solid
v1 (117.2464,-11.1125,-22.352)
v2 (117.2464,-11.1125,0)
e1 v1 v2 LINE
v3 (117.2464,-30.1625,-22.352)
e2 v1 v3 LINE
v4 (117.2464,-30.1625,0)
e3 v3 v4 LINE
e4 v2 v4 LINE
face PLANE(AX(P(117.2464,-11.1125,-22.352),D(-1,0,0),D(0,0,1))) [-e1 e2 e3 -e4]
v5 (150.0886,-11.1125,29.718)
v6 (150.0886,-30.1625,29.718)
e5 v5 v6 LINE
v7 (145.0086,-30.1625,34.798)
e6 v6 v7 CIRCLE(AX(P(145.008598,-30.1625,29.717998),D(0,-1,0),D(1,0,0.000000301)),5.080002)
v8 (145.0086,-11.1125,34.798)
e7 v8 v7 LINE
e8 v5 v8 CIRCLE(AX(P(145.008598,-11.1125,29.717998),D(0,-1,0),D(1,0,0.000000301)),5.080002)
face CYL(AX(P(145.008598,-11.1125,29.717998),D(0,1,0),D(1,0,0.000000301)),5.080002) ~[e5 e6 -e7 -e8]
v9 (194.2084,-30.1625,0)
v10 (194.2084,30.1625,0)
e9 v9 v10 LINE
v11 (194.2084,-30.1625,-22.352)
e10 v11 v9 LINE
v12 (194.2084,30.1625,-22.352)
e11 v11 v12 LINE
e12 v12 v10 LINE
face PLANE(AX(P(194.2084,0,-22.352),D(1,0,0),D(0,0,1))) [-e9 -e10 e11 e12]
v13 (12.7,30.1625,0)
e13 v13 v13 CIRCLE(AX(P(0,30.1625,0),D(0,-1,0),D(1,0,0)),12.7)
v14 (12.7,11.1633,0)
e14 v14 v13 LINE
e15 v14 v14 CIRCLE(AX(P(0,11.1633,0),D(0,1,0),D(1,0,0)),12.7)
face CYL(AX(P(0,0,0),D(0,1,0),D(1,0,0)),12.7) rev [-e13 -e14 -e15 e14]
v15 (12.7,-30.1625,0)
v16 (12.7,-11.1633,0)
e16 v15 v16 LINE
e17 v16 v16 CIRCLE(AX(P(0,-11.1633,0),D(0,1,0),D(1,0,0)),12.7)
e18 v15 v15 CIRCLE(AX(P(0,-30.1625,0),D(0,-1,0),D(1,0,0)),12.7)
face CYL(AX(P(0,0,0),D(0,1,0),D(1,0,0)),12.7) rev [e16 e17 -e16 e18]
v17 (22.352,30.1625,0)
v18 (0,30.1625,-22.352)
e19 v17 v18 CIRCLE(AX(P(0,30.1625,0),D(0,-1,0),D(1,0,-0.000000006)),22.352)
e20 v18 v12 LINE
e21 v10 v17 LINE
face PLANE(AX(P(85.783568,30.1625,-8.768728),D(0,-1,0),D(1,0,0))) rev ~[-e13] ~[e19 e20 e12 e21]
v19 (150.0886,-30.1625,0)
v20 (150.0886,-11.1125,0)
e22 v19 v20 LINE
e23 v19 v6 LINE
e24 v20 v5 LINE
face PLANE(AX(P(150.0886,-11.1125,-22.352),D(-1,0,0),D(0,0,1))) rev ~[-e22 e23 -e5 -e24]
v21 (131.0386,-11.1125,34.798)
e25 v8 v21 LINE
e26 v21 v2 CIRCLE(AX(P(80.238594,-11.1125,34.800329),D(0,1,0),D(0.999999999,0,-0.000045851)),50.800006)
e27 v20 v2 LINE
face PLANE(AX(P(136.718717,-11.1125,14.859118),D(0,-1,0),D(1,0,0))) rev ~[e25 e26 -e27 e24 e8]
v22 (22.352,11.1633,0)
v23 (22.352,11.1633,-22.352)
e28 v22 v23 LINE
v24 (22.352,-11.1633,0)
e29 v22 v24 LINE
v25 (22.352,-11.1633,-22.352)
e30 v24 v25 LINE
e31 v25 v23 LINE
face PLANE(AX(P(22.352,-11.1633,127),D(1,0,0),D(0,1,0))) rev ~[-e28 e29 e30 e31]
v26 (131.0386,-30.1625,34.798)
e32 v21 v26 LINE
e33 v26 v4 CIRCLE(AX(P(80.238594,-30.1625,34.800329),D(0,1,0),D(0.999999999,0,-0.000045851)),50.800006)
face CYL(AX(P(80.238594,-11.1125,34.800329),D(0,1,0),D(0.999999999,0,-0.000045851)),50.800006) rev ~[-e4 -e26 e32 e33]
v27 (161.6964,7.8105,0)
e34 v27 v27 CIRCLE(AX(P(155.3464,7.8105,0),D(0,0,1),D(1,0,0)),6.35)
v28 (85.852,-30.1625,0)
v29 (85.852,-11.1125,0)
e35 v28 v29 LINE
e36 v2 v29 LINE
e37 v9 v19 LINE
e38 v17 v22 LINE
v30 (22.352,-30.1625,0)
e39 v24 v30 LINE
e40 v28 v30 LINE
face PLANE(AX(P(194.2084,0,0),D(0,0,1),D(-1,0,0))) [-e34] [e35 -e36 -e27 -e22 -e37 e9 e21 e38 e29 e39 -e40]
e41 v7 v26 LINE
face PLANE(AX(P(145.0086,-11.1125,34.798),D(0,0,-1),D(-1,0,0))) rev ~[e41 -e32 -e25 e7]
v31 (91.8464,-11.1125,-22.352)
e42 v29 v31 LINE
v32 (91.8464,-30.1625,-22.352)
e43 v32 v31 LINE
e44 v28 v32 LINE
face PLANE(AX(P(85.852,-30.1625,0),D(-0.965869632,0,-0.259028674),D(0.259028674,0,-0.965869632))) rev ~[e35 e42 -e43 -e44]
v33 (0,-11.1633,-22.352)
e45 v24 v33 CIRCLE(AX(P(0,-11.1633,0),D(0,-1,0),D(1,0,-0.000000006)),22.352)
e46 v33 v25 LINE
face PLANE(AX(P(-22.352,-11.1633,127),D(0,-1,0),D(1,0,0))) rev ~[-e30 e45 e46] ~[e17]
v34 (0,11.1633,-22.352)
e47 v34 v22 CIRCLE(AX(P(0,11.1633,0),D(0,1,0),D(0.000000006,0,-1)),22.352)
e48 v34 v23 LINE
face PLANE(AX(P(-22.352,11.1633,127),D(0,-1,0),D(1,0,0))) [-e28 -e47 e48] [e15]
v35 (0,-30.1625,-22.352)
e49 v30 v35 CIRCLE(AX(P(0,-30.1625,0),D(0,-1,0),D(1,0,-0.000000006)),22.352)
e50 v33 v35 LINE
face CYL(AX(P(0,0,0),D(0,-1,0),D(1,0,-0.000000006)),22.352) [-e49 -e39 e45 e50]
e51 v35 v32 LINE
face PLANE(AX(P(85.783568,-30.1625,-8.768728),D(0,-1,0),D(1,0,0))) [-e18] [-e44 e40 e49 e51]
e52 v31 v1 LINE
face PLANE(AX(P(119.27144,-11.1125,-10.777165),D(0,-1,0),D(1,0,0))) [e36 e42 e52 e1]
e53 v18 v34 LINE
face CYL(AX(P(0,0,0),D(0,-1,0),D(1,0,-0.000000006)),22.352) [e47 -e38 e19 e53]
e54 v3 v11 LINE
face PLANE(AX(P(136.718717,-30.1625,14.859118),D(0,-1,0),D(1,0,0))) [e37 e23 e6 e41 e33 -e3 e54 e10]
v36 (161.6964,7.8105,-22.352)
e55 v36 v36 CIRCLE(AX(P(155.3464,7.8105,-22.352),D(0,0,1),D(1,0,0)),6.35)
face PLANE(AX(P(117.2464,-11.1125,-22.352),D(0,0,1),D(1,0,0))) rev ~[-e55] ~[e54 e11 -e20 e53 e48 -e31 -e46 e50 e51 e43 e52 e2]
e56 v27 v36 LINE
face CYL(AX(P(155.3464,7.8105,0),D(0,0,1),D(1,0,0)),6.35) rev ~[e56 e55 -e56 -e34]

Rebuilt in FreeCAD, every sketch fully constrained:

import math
import FreeCAD as App
import Part
import Sketcher
Q = App.Units.Quantity


def add_polygon(sketch, points):
    """Adds a closed chain of lines whose ends are joined by coincident constraints."""
    first, n = sketch.GeometryCount, len(points)
    for a, b in zip(points, points[1:] + points[:1]):
        sketch.addGeometry(Part.LineSegment(App.Vector(*a, 0), App.Vector(*b, 0)), False)
    for i in range(n):
        sketch.addConstraint(Sketcher.Constraint("Coincident", first + i, 2, first + (i + 1) % n, 1))

doc = App.newDocument("Part")
body = doc.addObject("PartDesign::Body", "Body")

# Sketch on XZ plane
sketch1 = doc.addObject("Sketcher::SketchObject", "Sketch")
body.addObject(sketch1)
sketch1.AttachmentSupport = (doc.XZ_Plane, [""])
sketch1.MapMode = "FlatFace"
sketch1.addGeometry(Part.LineSegment(App.Vector(194.2084, 0, 0), App.Vector(22.352, 0, 0)), False)
sketch1.addGeometry(Part.ArcOfCircle(Part.Circle(App.Vector(0, 0, 0), App.Vector(0, 0, 1), 22.352), math.radians(0), math.radians(270)), False)
sketch1.addGeometry(Part.LineSegment(App.Vector(0, -22.352, 0), App.Vector(194.2084, -22.352, 0)), False)
sketch1.addGeometry(Part.LineSegment(App.Vector(194.2084, -22.352, 0), App.Vector(194.2084, 0, 0)), False)
sketch1.addGeometry(Part.Circle(App.Vector(0, 0, 0), App.Vector(0, 0, 1), 12.7), False)
sketch1.addConstraint(Sketcher.Constraint("Coincident", 0, 2, 1, 1))
sketch1.addConstraint(Sketcher.Constraint("Tangent", 1, 2, 2, 1))
sketch1.addConstraint(Sketcher.Constraint("Coincident", 2, 2, 3, 1))
sketch1.addConstraint(Sketcher.Constraint("Coincident", 3, 2, 0, 1))
sketch1.addConstraint(Sketcher.Constraint("Horizontal", 0))
sketch1.addConstraint(Sketcher.Constraint("Horizontal", 2))
sketch1.addConstraint(Sketcher.Constraint("Vertical", 3))
sketch1.addConstraint(Sketcher.Constraint("Coincident", 1, 3, -1, 1))
sketch1.addConstraint(Sketcher.Constraint("Coincident", 4, 3, -1, 1))
sketch1.addConstraint(Sketcher.Constraint("PointOnObject", 0, 2, -1))
sketch1.addConstraint(Sketcher.Constraint("Diameter", 4, Q("1 in")))
sketch1.addConstraint(Sketcher.Constraint("Radius", 1, Q("0.88 in")))
sketch1.addConstraint(Sketcher.Constraint("DistanceX", 0, 2, 0, 1, Q("6.766 in")))
pad1 = doc.addObject("PartDesign::Pad", "Pad")
body.addObject(pad1)
pad1.Profile = sketch1
pad1.Length = Q("2.375 in")
pad1.Midplane = True

# Sketch on XZ plane
sketch2 = doc.addObject("Sketcher::SketchObject", "Sketch001")
body.addObject(sketch2)
sketch2.AttachmentSupport = (doc.XZ_Plane, [""])
sketch2.MapMode = "FlatFace"
sketch2.AttachmentOffset = App.Placement(App.Vector(0, 0, 1.1875 * 25.4), App.Rotation())
add_polygon(sketch2, [(91.8464, -22.352), (150.0886, -22.352), (150.0886, 0), (85.852, 0)])  # lines 0-3
sketch2.addConstraint(Sketcher.Constraint("Horizontal", 0))
sketch2.addConstraint(Sketcher.Constraint("Vertical", 1))
sketch2.addConstraint(Sketcher.Constraint("Horizontal", 2))
sketch2.addConstraint(Sketcher.Constraint("PointOnObject", 1, 2, -1))
sketch2.addConstraint(Sketcher.Constraint("DistanceY", 1, 1, 1, 2, Q("0.88 in")))
sketch2.addConstraint(Sketcher.Constraint("DistanceX", 0, 1, 0, 2, Q("2.293 in")))
sketch2.addConstraint(Sketcher.Constraint("DistanceX", 2, 2, 2, 1, Q("2.529 in")))
sketch2.addConstraint(Sketcher.Constraint("DistanceX", -1, 1, 2, 2, Q("3.38 in")))
pocket1 = doc.addObject("PartDesign::Pocket", "Pocket")
body.addObject(pocket1)
pocket1.Profile = sketch2
pocket1.Length = Q("0.75 in")

# Sketch on XZ plane
sketch3 = doc.addObject("Sketcher::SketchObject", "Sketch002")
body.addObject(sketch3)
sketch3.AttachmentSupport = (doc.XZ_Plane, [""])
sketch3.MapMode = "FlatFace"
sketch3.AttachmentOffset = App.Placement(App.Vector(0, 0, 0.4375 * 25.4), App.Rotation())
sketch3.addGeometry(Part.ArcOfCircle(Part.Circle(App.Vector(145.008598, 29.717998, 0), App.Vector(0, 0, 1), 5.080002), math.radians(0.000017), math.radians(89.999983)), False)
sketch3.addGeometry(Part.LineSegment(App.Vector(145.0086, 34.798, 0), App.Vector(131.0386, 34.798, 0)), False)
sketch3.addGeometry(Part.ArcOfCircle(Part.Circle(App.Vector(80.238594, 34.800329, 0), App.Vector(0, 0, 1), 50.800006), math.radians(-43.239207), math.radians(-0.002627)), False)
sketch3.addGeometry(Part.LineSegment(App.Vector(117.2464, 0, 0), App.Vector(117.2464, -22.352, 0)), False)
sketch3.addGeometry(Part.LineSegment(App.Vector(117.2464, -22.352, 0), App.Vector(150.0886, -22.352, 0)), False)
sketch3.addGeometry(Part.LineSegment(App.Vector(150.0886, -22.352, 0), App.Vector(150.0886, 29.718, 0)), False)
sketch3.addConstraint(Sketcher.Constraint("Tangent", 0, 2, 1, 1))
sketch3.addConstraint(Sketcher.Constraint("Coincident", 1, 2, 2, 2))
sketch3.addConstraint(Sketcher.Constraint("Coincident", 2, 1, 3, 1))
sketch3.addConstraint(Sketcher.Constraint("Coincident", 3, 2, 4, 1))
sketch3.addConstraint(Sketcher.Constraint("Coincident", 4, 2, 5, 1))
sketch3.addConstraint(Sketcher.Constraint("Tangent", 5, 2, 0, 1))
sketch3.addConstraint(Sketcher.Constraint("Horizontal", 1))
sketch3.addConstraint(Sketcher.Constraint("Vertical", 3))
sketch3.addConstraint(Sketcher.Constraint("Horizontal", 4))
sketch3.addConstraint(Sketcher.Constraint("Vertical", 5))
sketch3.addConstraint(Sketcher.Constraint("PointOnObject", 2, 1, -1))
sketch3.addConstraint(Sketcher.Constraint("Radius", 0, Q("0.2000001 in")))
sketch3.addConstraint(Sketcher.Constraint("DistanceX", 1, 2, 1, 1, Q("0.55 in")))
sketch3.addConstraint(Sketcher.Constraint("DistanceY", 3, 2, 3, 1, Q("0.88 in")))
sketch3.addConstraint(Sketcher.Constraint("DistanceY", 5, 1, 5, 2, Q("2.05 in")))
sketch3.addConstraint(Sketcher.Constraint("DistanceX", 4, 1, 4, 2, Q("1.293 in")))
sketch3.addConstraint(Sketcher.Constraint("DistanceX", 2, 3, 0, 3, Q("2.5500002 in")))
sketch3.addConstraint(Sketcher.Constraint("DistanceX", -1, 1, 0, 3, Q("5.7089999 in")))
pad2 = doc.addObject("PartDesign::Pad", "Pad001")
body.addObject(pad2)
pad2.Profile = sketch3
pad2.Length = Q("0.75 in")

# Sketch on XY plane
sketch4 = doc.addObject("Sketcher::SketchObject", "Sketch003")
body.addObject(sketch4)
sketch4.AttachmentSupport = (doc.XY_Plane, [""])
sketch4.MapMode = "FlatFace"
sketch4.addGeometry(Part.Circle(App.Vector(155.3464, 7.8105, 0), App.Vector(0, 0, 1), 6.35), False)
sketch4.addConstraint(Sketcher.Constraint("Diameter", 0, Q("0.5 in")))
sketch4.addConstraint(Sketcher.Constraint("DistanceX", -1, 1, 0, 3, Q("6.116 in")))
sketch4.addConstraint(Sketcher.Constraint("DistanceY", -1, 1, 0, 3, Q("0.3075 in")))
pocket2 = doc.addObject("PartDesign::Pocket", "Pocket001")
body.addObject(pocket2)
pocket2.Profile = sketch4
pocket2.Type = "ThroughAll"

# Sketch on XY plane
sketch5 = doc.addObject("Sketcher::SketchObject", "Sketch004")
body.addObject(sketch5)
sketch5.AttachmentSupport = (doc.XY_Plane, [""])
sketch5.MapMode = "FlatFace"
sketch5.AttachmentOffset = App.Placement(App.Vector(0, 0, 5 * 25.4), App.Rotation())
add_polygon(sketch5, [(-22.352, 11.1633), (-22.352, -11.1633), (22.352, -11.1633), (22.352, 11.1633)])  # lines 0-3
sketch5.addConstraint(Sketcher.Constraint("Vertical", 0))
sketch5.addConstraint(Sketcher.Constraint("Horizontal", 1))
sketch5.addConstraint(Sketcher.Constraint("Vertical", 2))
sketch5.addConstraint(Sketcher.Constraint("Horizontal", 3))
sketch5.addConstraint(Sketcher.Constraint("Symmetric", 0, 2, 2, 2, -1, 1))
sketch5.addConstraint(Sketcher.Constraint("DistanceX", 1, 1, 1, 2, Q("1.76 in")))
sketch5.addConstraint(Sketcher.Constraint("DistanceY", 0, 2, 0, 1, Q("0.879 in")))
pocket3 = doc.addObject("PartDesign::Pocket", "Pocket002")
body.addObject(pocket3)
pocket3.Profile = sketch5
pocket3.Type = "ThroughAll"

doc.recompute()
